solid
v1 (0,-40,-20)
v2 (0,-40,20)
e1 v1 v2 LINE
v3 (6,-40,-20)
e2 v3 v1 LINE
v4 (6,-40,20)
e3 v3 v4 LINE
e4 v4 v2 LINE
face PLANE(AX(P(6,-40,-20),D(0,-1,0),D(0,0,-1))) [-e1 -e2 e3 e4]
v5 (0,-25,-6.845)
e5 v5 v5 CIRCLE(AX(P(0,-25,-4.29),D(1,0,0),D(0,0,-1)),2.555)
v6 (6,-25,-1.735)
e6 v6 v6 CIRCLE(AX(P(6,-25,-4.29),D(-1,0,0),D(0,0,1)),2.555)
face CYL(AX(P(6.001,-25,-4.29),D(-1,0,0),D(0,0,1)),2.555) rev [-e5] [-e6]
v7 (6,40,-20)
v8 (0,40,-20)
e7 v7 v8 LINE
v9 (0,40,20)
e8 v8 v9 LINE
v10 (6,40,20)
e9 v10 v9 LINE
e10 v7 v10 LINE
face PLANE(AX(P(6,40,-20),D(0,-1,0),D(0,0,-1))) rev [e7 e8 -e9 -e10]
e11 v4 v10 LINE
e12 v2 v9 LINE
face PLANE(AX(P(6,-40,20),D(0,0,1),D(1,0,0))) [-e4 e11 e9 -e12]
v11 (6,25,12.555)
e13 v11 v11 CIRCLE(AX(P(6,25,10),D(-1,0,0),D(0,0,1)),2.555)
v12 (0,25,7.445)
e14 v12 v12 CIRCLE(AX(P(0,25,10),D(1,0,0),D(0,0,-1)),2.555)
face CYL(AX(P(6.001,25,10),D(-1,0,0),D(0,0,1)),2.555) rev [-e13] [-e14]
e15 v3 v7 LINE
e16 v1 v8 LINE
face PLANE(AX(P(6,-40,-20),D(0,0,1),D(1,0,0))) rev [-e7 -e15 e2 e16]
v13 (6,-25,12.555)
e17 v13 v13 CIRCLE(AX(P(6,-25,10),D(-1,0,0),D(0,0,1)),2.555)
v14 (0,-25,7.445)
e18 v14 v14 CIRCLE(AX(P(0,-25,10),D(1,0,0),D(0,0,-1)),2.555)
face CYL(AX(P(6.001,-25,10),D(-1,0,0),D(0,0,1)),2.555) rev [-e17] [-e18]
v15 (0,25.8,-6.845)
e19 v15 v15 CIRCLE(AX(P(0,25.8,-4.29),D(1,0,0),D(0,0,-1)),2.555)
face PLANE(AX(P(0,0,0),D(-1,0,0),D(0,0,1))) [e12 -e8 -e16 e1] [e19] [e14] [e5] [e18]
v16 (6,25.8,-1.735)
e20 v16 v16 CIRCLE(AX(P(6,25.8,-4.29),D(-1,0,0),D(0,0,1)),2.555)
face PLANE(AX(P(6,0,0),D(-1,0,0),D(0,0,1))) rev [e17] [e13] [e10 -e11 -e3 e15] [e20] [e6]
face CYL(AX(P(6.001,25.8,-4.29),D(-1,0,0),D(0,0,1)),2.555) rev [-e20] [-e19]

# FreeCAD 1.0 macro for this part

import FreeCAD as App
import Part
import Sketcher
Q = App.Units.Quantity

doc = App.newDocument("Part")
body = doc.addObject("PartDesign::Body", "Body")

sketch1 = body.newObject("Sketcher::SketchObject", "Sketch")
sketch1.AttachmentSupport = (doc.getObject("YZ_Plane"), [""])
sketch1.MapMode = "FlatFace"
sketch1.addGeometry([
    Part.LineSegment(App.Vector(-40, 20, 0), App.Vector(-40, -20, 0)),
    Part.LineSegment(App.Vector(-40, -20, 0), App.Vector(40, -20, 0)),
    Part.LineSegment(App.Vector(40, -20, 0), App.Vector(40, 20, 0)),
    Part.LineSegment(App.Vector(40, 20, 0), App.Vector(-40, 20, 0)),
], False)
sketch1.addConstraint([
    Sketcher.Constraint("Coincident", 0, 2, 1, 1),
    Sketcher.Constraint("Coincident", 1, 2, 2, 1),
    Sketcher.Constraint("Coincident", 2, 2, 3, 1),
    Sketcher.Constraint("Coincident", 3, 2, 0, 1),
    Sketcher.Constraint("Vertical", 0),
    Sketcher.Constraint("Horizontal", 1),
    Sketcher.Constraint("Vertical", 2),
    Sketcher.Constraint("Horizontal", 3),
    Sketcher.Constraint("Symmetric", 0, 2, 2, 2, -1, 1),
    Sketcher.Constraint("DistanceX", 1, 1, 1, 2, Q("80 mm")),
    Sketcher.Constraint("DistanceY", 0, 2, 0, 1, Q("40 mm")),
])
pad1 = body.newObject("PartDesign::Pad", "Pad")
pad1.Profile = sketch1
pad1.Length = 6

sketch2 = body.newObject("Sketcher::SketchObject", "Sketch001")
sketch2.AttachmentSupport = (doc.getObject("YZ_Plane"), [""])
sketch2.MapMode = "FlatFace"
sketch2.addGeometry(Part.Circle(App.Vector(-25, -4.3, 0), App.Vector(0, 0, 1), 2.6), False)
sketch2.addConstraint([
    Sketcher.Constraint("Diameter", 0, Q("5.11 mm")),
    Sketcher.Constraint("DistanceX", 0, 3, -1, 1, Q("25 mm")),
    Sketcher.Constraint("DistanceY", 0, 3, -1, 1, Q("4.29 mm")),
])
pocket1 = body.newObject("PartDesign::Pocket", "Pocket")
pocket1.Profile = sketch2
pocket1.Type = "UpToFirst"
pocket1.Reversed = True

sketch3 = body.newObject("Sketcher::SketchObject", "Sketch002")
sketch3.AttachmentSupport = (doc.getObject("YZ_Plane"), [""])
sketch3.MapMode = "FlatFace"
sketch3.addGeometry(Part.Circle(App.Vector(25.8, -4.3, 0), App.Vector(0, 0, 1), 2.6), False)
sketch3.addConstraint([
    Sketcher.Constraint("Diameter", 0, Q("5.11 mm")),
    Sketcher.Constraint("DistanceX", -1, 1, 0, 3, Q("25.8 mm")),
    Sketcher.Constraint("DistanceY", 0, 3, -1, 1, Q("4.29 mm")),
])
pocket2 = body.newObject("PartDesign::Pocket", "Pocket001")
pocket2.Profile = sketch3
pocket2.Type = "UpToFirst"
pocket2.Reversed = True

sketch4 = body.newObject("Sketcher::SketchObject", "Sketch003")
sketch4.AttachmentSupport = (doc.getObject("YZ_Plane"), [""])
sketch4.MapMode = "FlatFace"
sketch4.addGeometry(Part.Circle(App.Vector(-25, 10, 0), App.Vector(0, 0, 1), 2.6), False)
sketch4.addConstraint([
    Sketcher.Constraint("Diameter", 0, Q("5.11 mm")),
    Sketcher.Constraint("DistanceX", 0, 3, -1, 1, Q("25 mm")),
    Sketcher.Constraint("DistanceY", -1, 1, 0, 3, Q("10 mm")),
])
pocket3 = body.newObject("PartDesign::Pocket", "Pocket002")
pocket3.Profile = sketch4
pocket3.Type = "UpToFirst"
pocket3.Reversed = True

sketch5 = body.newObject("Sketcher::SketchObject", "Sketch004")
sketch5.AttachmentSupport = (doc.getObject("YZ_Plane"), [""])
sketch5.MapMode = "FlatFace"
sketch5.addGeometry(Part.Circle(App.Vector(25, 10, 0), App.Vector(0, 0, 1), 2.6), False)
sketch5.addConstraint([
    Sketcher.Constraint("Diameter", 0, Q("5.11 mm")),
    Sketcher.Constraint("DistanceX", -1, 1, 0, 3, Q("25 mm")),
    Sketcher.Constraint("DistanceY", -1, 1, 0, 3, Q("10 mm")),
])
pocket4 = body.newObject("PartDesign::Pocket", "Pocket003")
pocket4.Profile = sketch5
pocket4.Type = "UpToFirst"
pocket4.Reversed = True

doc.recompute()
